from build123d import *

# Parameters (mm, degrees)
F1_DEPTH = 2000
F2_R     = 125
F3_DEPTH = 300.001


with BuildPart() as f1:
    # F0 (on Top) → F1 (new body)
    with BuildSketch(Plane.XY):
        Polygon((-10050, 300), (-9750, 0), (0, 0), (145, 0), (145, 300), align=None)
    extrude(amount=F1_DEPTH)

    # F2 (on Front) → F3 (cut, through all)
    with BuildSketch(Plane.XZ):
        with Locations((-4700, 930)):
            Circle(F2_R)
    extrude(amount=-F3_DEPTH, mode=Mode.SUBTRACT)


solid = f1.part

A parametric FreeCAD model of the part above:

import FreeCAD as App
import Part
import Sketcher
from FreeCAD import Vector
Q = App.Units.Quantity

doc = App.newDocument("Part")
body = doc.addObject("PartDesign::Body", "Body")

# Sketch on XY plane
sketch1 = body.newObject("Sketcher::SketchObject", "Sketch")
sketch1.AttachmentSupport = (doc.getObject("XY_Plane"), [""])
sketch1.MapMode = "FlatFace"
sketch1.addGeometry([
    Part.LineSegment(Vector(-10050, 300, 0), Vector(-9750, 0, 0)),
    Part.LineSegment(Vector(-9750, 0, 0), Vector(145, 0, 0)),
    Part.LineSegment(Vector(145, 0, 0), Vector(145, 300, 0)),
    Part.LineSegment(Vector(145, 300, 0), Vector(-10050, 300, 0)),
], False)
sketch1.addConstraint([
    Sketcher.Constraint("Coincident", 0, 2, 1, 1),
    Sketcher.Constraint("Coincident", 1, 2, 2, 1),
    Sketcher.Constraint("Coincident", 2, 2, 3, 1),
    Sketcher.Constraint("Coincident", 3, 2, 0, 1),
    Sketcher.Constraint("Horizontal", 1),
    Sketcher.Constraint("Vertical", 2),
    Sketcher.Constraint("Horizontal", 3),
    Sketcher.Constraint("PointOnObject", 0, 2, -1),
    Sketcher.Constraint("DistanceX", 1, 1, 1, 2, Q("9895 mm")),
    Sketcher.Constraint("DistanceX", 3, 2, 3, 1, Q("10195 mm")),
    Sketcher.Constraint("DistanceY", 2, 1, 2, 2, Q("300 mm")),
    Sketcher.Constraint("DistanceX", 0, 2, -1, 1, Q("9750 mm")),
])
pad1 = body.newObject("PartDesign::Pad", "Pad")
pad1.Profile = sketch1
pad1.Length = 2000

# Sketch on XZ plane
sketch2 = body.newObject("Sketcher::SketchObject", "Sketch001")
sketch2.AttachmentSupport = (doc.getObject("XZ_Plane"), [""])
sketch2.MapMode = "FlatFace"
sketch2.addGeometry(Part.Circle(Vector(-4700, 930, 0), Vector(0, 0, 1), 125), False)
sketch2.addConstraint([
    Sketcher.Constraint("Diameter", 0, Q("250 mm")),
    Sketcher.Constraint("DistanceX", 0, 3, -1, 1, Q("4700 mm")),
    Sketcher.Constraint("DistanceY", -1, 1, 0, 3, Q("930 mm")),
])
pocket1 = body.newObject("PartDesign::Pocket", "Pocket")
pocket1.Profile = sketch2
pocket1.Type = "ThroughAll"

doc.recompute()
